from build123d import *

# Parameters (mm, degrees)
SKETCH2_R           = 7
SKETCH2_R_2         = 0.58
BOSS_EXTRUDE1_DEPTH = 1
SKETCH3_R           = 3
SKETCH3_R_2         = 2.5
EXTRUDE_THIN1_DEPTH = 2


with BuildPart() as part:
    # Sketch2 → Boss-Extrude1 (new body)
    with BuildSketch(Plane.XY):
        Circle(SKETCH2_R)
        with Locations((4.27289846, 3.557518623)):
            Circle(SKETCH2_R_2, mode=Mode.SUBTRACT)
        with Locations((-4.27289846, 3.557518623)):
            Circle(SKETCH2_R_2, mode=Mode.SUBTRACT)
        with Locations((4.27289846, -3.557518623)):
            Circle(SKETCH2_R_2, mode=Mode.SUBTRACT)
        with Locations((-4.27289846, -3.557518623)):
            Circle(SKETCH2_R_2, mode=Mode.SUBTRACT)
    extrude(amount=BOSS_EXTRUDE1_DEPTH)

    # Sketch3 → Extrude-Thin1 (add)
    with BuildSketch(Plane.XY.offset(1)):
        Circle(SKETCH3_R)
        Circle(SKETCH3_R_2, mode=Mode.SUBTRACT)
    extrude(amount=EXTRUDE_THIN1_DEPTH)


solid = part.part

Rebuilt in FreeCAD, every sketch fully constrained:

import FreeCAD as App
import Part
import Sketcher
from FreeCAD import Vector

doc = App.newDocument("Part")
params = doc.addObject("Spreadsheet::Sheet", "Params")
for row, (alias, value) in enumerate([
    ("sketch1_diameter", "14 mm"),
    ("sketch1_diameter2", "1.16 mm"),
    ("pad1_length", "1 mm"),
    ("sketch2_diameter", "6 mm"),
    ("sketch2_diameter2", "5 mm"),
    ("pad2_length", "2 mm"),
], start=1):
    params.set(f"A{row}", alias)
    params.set(f"B{row}", "=" + value)
    params.setAlias(f"B{row}", alias)

body = doc.addObject("PartDesign::Body", "Body")

sketch1 = body.newObject("Sketcher::SketchObject", "Sketch")
sketch1.AttachmentSupport = (doc.getObject("XY_Plane"), [""])
sketch1.MapMode = "FlatFace"
sketch1.addGeometry(Part.Circle(Vector(0, 0, 0), Vector(0, 0, 1), 7), False)
sketch1.addGeometry(Part.Circle(Vector(-4.3, -3.6, 0), Vector(0, 0, 1), 0.6), False)
sketch1.addGeometry(Part.Circle(Vector(4.3, -3.6, 0), Vector(0, 0, 1), 0.6), False)
sketch1.addGeometry(Part.Circle(Vector(-4.3, 3.6, 0), Vector(0, 0, 1), 0.6), False)
sketch1.addGeometry(Part.Circle(Vector(4.3, 3.6, 0), Vector(0, 0, 1), 0.6), False)
sketch1.addConstraint(Sketcher.Constraint("Coincident", 0, 3, -1, 1))
sketch1.addConstraint(Sketcher.Constraint("Equal", 1, 2))
sketch1.addConstraint(Sketcher.Constraint("Equal", 2, 3))
sketch1.addConstraint(Sketcher.Constraint("Equal", 3, 4))
sketch1.addConstraint(Sketcher.Constraint("Symmetric", 2, 3, 3, 3, -1, 1))
sketch1.addConstraint(Sketcher.Constraint("Symmetric", 1, 3, 4, 3, -1, 1))
sketch1.addConstraint(Sketcher.Constraint("Symmetric", 1, 3, 2, 3, -2))
sketch1.addConstraint(Sketcher.Constraint("Diameter", 0, 14.0))
sketch1.addConstraint(Sketcher.Constraint("Diameter", 1, 1.16))
sketch1.addConstraint(Sketcher.Constraint("DistanceX", 1, 3, -1, 1, 4.272898))
sketch1.addConstraint(Sketcher.Constraint("DistanceY", 1, 3, -1, 1, 3.557519))
sketch1.setExpression("Constraints[7]", "Params.sketch1_diameter")
sketch1.setExpression("Constraints[8]", "Params.sketch1_diameter2")
pad1 = body.newObject("PartDesign::Pad", "Pad")
pad1.Profile = sketch1
pad1.setExpression("Length", "Params.pad1_length")

sketch2 = body.newObject("Sketcher::SketchObject", "Sketch001")
sketch2.AttachmentSupport = (doc.getObject("XY_Plane"), [""])
sketch2.MapMode = "FlatFace"
sketch2.AttachmentOffset = App.Placement(Vector(0, 0, 1), App.Rotation())
sketch2.addGeometry(Part.Circle(Vector(0, 0, 0), Vector(0, 0, 1), 3), False)
sketch2.addGeometry(Part.Circle(Vector(0, 0, 0), Vector(0, 0, 1), 2.5), False)
sketch2.addConstraint(Sketcher.Constraint("Coincident", 0, 3, -1, 1))
sketch2.addConstraint(Sketcher.Constraint("Coincident", 1, 3, -1, 1))
sketch2.addConstraint(Sketcher.Constraint("Diameter", 0, 6.0))
sketch2.addConstraint(Sketcher.Constraint("Diameter", 1, 5.0))
sketch2.setExpression("Constraints[2]", "Params.sketch2_diameter")
sketch2.setExpression("Constraints[3]", "Params.sketch2_diameter2")
pad2 = body.newObject("PartDesign::Pad", "Pad001")
pad2.Profile = sketch2
pad2.setExpression("Length", "Params.pad2_length")

doc.recompute()
